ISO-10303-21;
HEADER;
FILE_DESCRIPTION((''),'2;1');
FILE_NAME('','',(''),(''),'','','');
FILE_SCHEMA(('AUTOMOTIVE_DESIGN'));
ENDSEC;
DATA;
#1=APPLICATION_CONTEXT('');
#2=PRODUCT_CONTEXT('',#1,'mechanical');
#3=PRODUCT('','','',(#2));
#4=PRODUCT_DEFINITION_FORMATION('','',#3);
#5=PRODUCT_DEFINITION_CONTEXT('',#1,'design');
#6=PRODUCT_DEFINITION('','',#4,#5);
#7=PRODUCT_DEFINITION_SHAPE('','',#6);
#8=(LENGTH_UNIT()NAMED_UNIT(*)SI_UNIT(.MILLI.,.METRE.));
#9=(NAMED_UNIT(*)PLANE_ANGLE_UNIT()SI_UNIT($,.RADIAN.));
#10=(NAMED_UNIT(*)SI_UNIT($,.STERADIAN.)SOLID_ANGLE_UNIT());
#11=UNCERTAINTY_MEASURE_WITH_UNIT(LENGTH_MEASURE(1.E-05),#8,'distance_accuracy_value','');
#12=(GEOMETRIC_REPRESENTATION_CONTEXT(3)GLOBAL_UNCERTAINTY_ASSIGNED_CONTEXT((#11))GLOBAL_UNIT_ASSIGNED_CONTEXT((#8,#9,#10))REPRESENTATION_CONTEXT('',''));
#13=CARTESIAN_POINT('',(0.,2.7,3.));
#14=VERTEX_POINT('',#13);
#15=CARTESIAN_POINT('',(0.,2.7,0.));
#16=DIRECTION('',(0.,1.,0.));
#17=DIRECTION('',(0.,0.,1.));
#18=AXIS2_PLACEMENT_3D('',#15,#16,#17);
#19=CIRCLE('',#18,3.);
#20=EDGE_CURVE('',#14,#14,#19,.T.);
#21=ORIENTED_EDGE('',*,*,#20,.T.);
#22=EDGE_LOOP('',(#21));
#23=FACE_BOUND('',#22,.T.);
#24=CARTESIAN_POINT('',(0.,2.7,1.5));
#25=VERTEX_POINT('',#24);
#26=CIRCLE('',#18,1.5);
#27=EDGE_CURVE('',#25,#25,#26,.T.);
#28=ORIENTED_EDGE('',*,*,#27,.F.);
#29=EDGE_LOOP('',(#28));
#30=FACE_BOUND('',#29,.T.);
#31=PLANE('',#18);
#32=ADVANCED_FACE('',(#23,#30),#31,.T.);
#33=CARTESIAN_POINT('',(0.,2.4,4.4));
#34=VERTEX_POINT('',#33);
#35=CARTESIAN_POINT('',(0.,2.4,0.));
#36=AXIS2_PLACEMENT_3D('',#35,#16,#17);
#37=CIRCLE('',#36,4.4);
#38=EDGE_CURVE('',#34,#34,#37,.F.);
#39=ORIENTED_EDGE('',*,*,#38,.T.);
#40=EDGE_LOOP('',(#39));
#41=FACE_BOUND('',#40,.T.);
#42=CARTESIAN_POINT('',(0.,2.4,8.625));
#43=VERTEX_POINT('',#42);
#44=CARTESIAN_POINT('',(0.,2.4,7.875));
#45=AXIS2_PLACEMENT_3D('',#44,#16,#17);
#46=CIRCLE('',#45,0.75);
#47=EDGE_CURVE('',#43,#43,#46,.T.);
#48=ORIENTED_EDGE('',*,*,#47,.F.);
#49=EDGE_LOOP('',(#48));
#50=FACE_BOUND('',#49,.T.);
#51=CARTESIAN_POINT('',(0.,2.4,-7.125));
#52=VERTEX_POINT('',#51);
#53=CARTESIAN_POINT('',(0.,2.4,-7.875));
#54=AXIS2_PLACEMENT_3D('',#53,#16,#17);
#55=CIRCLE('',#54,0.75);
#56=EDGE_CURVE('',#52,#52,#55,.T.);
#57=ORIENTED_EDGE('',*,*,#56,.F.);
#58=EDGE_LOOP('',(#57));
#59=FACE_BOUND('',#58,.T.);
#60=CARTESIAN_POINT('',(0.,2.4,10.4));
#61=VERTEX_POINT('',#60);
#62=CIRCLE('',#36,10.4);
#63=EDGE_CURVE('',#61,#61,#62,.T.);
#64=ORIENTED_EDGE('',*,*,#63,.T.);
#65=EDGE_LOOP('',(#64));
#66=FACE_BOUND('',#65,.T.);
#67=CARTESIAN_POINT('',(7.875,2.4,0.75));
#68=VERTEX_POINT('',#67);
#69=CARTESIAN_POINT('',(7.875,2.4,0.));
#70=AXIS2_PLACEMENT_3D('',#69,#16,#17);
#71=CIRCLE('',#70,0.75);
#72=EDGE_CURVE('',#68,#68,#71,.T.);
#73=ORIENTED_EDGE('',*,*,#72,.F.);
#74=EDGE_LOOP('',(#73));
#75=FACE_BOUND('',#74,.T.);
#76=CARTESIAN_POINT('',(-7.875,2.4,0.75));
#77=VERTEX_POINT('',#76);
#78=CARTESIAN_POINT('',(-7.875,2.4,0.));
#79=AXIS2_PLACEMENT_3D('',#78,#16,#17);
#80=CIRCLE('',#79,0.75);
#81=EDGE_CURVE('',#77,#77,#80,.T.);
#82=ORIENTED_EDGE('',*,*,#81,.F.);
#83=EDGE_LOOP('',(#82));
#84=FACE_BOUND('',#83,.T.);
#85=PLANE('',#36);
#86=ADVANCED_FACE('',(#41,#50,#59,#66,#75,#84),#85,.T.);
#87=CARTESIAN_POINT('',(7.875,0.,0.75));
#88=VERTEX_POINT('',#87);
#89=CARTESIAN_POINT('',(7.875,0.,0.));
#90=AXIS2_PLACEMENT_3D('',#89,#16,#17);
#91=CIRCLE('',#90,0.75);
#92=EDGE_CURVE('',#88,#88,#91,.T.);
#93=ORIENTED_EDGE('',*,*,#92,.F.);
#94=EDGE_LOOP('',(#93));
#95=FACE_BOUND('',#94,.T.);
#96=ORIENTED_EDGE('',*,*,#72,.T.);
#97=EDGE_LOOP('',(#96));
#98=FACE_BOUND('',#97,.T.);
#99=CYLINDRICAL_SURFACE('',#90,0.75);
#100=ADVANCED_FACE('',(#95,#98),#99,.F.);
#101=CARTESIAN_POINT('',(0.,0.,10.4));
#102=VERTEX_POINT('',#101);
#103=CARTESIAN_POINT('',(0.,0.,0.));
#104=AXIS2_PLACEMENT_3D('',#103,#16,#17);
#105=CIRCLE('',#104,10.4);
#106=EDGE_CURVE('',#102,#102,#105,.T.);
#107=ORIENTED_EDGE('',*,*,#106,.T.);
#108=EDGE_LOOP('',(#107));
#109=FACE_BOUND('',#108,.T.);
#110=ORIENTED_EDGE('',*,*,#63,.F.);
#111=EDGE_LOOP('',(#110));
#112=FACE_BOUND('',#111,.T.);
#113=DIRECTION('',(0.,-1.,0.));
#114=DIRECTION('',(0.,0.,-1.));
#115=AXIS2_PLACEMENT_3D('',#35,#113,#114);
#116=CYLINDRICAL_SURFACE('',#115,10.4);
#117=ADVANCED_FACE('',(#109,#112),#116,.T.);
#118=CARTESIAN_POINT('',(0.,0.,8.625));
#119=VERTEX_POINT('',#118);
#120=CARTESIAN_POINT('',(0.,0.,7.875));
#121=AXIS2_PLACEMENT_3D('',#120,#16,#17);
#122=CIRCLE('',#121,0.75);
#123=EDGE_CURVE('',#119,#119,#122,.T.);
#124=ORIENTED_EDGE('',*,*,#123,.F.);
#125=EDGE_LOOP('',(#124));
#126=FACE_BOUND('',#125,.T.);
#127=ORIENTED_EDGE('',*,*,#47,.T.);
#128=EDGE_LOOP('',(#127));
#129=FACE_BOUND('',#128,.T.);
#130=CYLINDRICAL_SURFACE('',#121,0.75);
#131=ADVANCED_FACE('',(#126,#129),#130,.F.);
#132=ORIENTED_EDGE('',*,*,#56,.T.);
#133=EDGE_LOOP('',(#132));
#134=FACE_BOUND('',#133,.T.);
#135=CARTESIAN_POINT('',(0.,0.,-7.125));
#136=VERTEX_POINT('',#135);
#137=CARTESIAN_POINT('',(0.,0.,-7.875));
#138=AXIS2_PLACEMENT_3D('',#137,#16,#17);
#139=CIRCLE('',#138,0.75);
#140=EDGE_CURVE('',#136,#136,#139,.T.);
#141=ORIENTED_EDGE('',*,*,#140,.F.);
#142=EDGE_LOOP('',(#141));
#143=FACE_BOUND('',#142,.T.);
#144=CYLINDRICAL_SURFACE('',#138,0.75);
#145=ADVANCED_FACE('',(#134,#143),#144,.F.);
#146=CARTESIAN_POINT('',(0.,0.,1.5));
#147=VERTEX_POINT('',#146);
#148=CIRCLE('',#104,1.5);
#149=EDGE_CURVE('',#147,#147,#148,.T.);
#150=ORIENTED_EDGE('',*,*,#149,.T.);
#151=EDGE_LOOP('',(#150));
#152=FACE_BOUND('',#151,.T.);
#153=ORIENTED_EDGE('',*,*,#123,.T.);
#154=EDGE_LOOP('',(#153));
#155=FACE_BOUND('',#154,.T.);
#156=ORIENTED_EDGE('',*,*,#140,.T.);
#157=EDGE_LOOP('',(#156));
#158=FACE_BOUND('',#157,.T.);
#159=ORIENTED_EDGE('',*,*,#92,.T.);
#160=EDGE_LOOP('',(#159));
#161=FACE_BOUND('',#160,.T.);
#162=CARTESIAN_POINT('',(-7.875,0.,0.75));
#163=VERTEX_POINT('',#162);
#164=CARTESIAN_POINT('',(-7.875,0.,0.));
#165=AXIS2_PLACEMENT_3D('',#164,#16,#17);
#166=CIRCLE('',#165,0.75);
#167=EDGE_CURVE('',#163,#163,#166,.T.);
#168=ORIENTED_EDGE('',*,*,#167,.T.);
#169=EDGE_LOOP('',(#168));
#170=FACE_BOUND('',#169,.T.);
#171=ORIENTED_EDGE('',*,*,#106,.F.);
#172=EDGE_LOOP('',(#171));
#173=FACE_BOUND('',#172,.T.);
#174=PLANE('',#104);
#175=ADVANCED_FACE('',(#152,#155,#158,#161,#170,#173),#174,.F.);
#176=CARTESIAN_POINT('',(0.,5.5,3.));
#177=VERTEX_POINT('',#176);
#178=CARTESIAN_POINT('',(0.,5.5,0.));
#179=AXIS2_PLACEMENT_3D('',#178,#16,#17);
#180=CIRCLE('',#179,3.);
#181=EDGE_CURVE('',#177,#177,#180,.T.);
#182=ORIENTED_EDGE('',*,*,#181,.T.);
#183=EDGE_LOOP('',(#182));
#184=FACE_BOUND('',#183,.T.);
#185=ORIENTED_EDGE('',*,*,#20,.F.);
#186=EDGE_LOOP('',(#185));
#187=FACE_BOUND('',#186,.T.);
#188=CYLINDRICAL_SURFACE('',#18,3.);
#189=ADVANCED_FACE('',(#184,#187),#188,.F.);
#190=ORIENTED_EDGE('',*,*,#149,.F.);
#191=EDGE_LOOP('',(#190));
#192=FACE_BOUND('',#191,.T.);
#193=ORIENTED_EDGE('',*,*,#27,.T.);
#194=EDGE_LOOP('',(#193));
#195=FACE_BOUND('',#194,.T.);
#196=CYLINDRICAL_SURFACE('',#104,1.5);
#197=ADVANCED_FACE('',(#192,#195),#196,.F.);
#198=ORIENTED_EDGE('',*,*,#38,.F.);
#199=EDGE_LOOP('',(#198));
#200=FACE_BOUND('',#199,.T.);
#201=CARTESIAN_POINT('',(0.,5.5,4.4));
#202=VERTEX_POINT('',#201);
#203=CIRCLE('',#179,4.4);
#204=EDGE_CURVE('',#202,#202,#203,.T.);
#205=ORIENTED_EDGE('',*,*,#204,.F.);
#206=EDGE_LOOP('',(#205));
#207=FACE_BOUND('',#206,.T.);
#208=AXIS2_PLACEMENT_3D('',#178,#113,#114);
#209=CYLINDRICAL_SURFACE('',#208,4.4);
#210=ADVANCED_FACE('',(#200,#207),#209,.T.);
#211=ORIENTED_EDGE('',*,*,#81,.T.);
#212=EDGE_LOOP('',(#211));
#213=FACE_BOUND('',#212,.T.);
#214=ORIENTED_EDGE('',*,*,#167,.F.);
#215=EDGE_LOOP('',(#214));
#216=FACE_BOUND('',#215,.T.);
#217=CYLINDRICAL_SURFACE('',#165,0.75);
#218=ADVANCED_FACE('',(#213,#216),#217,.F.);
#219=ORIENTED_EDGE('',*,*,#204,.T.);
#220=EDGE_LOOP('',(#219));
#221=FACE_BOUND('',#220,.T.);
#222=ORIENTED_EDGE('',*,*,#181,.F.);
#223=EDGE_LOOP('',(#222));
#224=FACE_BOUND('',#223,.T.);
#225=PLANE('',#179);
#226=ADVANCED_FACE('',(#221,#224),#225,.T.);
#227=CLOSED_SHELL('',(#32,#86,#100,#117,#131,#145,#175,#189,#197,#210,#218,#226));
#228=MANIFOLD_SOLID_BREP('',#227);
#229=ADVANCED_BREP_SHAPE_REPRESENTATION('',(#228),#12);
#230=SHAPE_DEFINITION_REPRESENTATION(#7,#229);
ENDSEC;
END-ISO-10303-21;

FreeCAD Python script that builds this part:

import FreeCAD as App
import Part
import Sketcher
Q = App.Units.Quantity

doc = App.newDocument("Part")
body = doc.addObject("PartDesign::Body", "Body")

# Sketch on XZ plane
sketch1 = body.newObject("Sketcher::SketchObject", "Sketch")
sketch1.AttachmentSupport = (doc.getObject("XZ_Plane"), [""])
sketch1.MapMode = "FlatFace"
sketch1.addGeometry(Part.Circle(App.Vector(0, 0, 0), App.Vector(0, 0, 1), 10.4), False)
sketch1.addConstraint([
    Sketcher.Constraint("Coincident", 0, 3, -1, 1),
    Sketcher.Constraint("Diameter", 0, Q("20.8 mm")),
])
pad1 = body.newObject("PartDesign::Pad", "Pad")
pad1.Profile = sketch1
pad1.Length = 2.4
pad1.Reversed = True

# Sketch on XZ plane
sketch2 = body.newObject("Sketcher::SketchObject", "Sketch001")
sketch2.AttachmentSupport = (doc.getObject("XZ_Plane"), [""])
sketch2.MapMode = "FlatFace"
sketch2.addGeometry(Part.Circle(App.Vector(0, 0, 0), App.Vector(0, 0, 1), 4.4), False)
sketch2.addConstraint([
    Sketcher.Constraint("Coincident", 0, 3, -1, 1),
    Sketcher.Constraint("Diameter", 0, Q("8.8 mm")),
])
pad2 = body.newObject("PartDesign::Pad", "Pad001")
pad2.Profile = sketch2
pad2.Length = 5.5
pad2.Reversed = True

# Sketch on XZ plane
sketch3 = body.newObject("Sketcher::SketchObject", "Sketch002")
sketch3.AttachmentSupport = (doc.getObject("XZ_Plane"), [""])
sketch3.MapMode = "FlatFace"
sketch3.AttachmentOffset = App.Placement(App.Vector(0, 0, -5.5), App.Rotation())
sketch3.addGeometry(Part.Circle(App.Vector(0, 0, 0), App.Vector(0, 0, 1), 3), False)
sketch3.addConstraint([
    Sketcher.Constraint("Coincident", 0, 3, -1, 1),
    Sketcher.Constraint("Diameter", 0, Q("6 mm")),
])
pocket1 = body.newObject("PartDesign::Pocket", "Pocket")
pocket1.Profile = sketch3
pocket1.Length = 2.8
pocket1.Reversed = True

# Sketch on XZ plane
sketch4 = body.newObject("Sketcher::SketchObject", "Sketch003")
sketch4.AttachmentSupport = (doc.getObject("XZ_Plane"), [""])
sketch4.MapMode = "FlatFace"
sketch4.AttachmentOffset = App.Placement(App.Vector(0, 0, -2.4), App.Rotation())
sketch4.addGeometry([
    Part.Circle(App.Vector(0, -7.875, 0), App.Vector(0, 0, 1), 0.75),
    Part.Circle(App.Vector(7.875, 0, 0), App.Vector(0, 0, 1), 0.75),
    Part.Circle(App.Vector(0, 7.875, 0), App.Vector(0, 0, 1), 0.75),
    Part.Circle(App.Vector(-7.875, 0, 0), App.Vector(0, 0, 1), 0.75),
], False)
sketch4.addConstraint([
    Sketcher.Constraint("Equal", 0, 1),
    Sketcher.Constraint("Equal", 1, 2),
    Sketcher.Constraint("Equal", 2, 3),
    Sketcher.Constraint("Symmetric", 0, 3, 2, 3, -1, 1),
    Sketcher.Constraint("Symmetric", 1, 3, 3, 3, -1, 1),
    Sketcher.Constraint("PointOnObject", 0, 3, -2),
    Sketcher.Constraint("PointOnObject", 1, 3, -1),
    Sketcher.Constraint("Diameter", 0, Q("1.5 mm")),
    Sketcher.Constraint("DistanceY", 0, 3, 2, 3, Q("15.75 mm")),
    Sketcher.Constraint("DistanceX", 3, 3, 1, 3, Q("15.75 mm")),
])
pocket2 = body.newObject("PartDesign::Pocket", "Pocket001")
pocket2.Profile = sketch4
pocket2.Type = "ThroughAll"
pocket2.Reversed = True

# Sketch on XZ plane
sketch5 = body.newObject("Sketcher::SketchObject", "Sketch004")
sketch5.AttachmentSupport = (doc.getObject("XZ_Plane"), [""])
sketch5.MapMode = "FlatFace"
sketch5.AttachmentOffset = App.Placement(App.Vector(0, 0, -2.7), App.Rotation())
sketch5.addGeometry(Part.Circle(App.Vector(0, 0, 0), App.Vector(0, 0, 1), 1.5), False)
sketch5.addConstraint([
    Sketcher.Constraint("Coincident", 0, 3, -1, 1),
    Sketcher.Constraint("Diameter", 0, Q("3 mm")),
])
pocket3 = body.newObject("PartDesign::Pocket", "Pocket002")
pocket3.Profile = sketch5
pocket3.Type = "ThroughAll"
pocket3.Reversed = True

doc.recompute()
